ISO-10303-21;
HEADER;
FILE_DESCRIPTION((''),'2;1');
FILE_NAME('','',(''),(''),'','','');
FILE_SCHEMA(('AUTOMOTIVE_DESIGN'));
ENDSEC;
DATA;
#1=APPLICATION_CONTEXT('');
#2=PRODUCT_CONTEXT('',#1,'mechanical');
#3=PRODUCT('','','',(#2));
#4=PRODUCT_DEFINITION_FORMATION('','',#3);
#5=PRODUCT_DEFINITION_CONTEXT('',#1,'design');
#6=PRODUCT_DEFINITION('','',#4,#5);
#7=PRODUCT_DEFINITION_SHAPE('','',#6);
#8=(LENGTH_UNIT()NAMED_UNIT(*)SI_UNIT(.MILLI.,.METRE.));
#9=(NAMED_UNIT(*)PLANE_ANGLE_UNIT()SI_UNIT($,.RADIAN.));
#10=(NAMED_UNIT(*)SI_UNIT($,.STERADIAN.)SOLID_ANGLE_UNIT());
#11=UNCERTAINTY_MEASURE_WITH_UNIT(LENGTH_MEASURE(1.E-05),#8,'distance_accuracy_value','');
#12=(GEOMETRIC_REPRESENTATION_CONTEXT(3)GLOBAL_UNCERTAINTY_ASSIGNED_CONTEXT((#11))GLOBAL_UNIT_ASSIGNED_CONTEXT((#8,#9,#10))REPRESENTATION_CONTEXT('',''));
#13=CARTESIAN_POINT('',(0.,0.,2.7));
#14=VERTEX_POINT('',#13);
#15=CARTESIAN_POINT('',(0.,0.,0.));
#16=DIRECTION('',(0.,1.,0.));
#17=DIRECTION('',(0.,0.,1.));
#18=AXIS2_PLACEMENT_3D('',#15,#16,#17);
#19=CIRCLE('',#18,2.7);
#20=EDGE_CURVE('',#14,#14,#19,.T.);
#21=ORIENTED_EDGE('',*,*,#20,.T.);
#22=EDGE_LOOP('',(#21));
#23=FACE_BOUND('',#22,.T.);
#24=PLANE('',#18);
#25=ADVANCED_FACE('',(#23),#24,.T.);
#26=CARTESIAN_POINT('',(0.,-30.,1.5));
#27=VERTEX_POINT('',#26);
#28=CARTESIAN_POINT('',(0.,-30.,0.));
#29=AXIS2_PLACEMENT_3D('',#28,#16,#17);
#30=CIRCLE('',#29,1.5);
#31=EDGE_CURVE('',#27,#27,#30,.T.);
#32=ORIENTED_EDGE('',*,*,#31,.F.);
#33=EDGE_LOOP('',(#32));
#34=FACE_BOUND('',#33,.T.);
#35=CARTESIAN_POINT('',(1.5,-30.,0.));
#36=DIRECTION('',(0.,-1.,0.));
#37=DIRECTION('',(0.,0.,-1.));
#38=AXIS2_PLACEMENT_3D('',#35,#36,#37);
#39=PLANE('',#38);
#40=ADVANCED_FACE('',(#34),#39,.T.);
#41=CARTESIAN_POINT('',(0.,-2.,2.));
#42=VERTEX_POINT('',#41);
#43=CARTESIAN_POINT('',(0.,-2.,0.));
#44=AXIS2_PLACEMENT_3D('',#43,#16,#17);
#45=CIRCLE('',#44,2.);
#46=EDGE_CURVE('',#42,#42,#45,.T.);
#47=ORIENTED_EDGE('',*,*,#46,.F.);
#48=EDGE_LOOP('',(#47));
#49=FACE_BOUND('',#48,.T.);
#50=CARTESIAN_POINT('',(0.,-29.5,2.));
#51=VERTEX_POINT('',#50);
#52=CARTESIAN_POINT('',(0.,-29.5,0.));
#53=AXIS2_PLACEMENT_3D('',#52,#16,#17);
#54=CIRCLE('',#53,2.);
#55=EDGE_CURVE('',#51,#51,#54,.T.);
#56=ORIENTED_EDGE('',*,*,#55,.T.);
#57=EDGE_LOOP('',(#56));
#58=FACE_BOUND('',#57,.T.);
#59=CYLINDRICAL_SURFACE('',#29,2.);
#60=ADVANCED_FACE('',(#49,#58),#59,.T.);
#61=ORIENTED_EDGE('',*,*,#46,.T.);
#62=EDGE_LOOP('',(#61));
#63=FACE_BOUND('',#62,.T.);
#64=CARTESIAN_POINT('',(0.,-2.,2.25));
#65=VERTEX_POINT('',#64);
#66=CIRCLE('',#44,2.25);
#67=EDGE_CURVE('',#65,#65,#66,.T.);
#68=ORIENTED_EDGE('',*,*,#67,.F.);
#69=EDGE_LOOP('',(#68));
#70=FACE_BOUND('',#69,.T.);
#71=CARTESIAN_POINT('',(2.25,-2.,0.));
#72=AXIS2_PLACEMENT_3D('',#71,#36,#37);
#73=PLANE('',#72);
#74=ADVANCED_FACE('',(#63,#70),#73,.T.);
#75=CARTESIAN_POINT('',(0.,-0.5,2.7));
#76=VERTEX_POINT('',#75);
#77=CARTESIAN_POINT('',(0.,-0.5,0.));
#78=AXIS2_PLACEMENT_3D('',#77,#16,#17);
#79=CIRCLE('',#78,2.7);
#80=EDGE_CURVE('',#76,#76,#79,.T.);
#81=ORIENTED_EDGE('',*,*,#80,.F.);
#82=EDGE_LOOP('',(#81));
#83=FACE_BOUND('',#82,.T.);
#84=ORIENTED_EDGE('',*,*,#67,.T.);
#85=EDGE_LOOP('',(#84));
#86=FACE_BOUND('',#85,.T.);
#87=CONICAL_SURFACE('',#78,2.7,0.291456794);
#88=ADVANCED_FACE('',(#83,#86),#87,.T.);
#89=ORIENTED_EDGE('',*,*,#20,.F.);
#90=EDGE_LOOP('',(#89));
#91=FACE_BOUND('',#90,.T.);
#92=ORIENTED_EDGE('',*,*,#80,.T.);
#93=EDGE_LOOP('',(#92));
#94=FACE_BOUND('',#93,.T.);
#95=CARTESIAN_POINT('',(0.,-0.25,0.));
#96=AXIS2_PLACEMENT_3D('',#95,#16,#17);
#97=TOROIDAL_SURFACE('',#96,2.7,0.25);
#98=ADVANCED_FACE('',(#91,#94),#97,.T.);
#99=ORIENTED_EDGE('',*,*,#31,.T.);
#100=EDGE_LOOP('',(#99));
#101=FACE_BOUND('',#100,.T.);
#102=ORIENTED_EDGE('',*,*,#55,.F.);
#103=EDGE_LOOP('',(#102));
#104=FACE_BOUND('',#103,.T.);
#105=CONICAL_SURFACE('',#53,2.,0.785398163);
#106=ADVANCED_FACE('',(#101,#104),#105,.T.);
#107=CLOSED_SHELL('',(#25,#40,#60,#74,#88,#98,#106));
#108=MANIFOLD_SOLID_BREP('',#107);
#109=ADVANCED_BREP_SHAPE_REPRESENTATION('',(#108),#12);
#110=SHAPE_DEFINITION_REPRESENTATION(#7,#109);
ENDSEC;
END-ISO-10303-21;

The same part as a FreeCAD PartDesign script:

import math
import FreeCAD as App
import Part
import Sketcher
Q = App.Units.Quantity

doc = App.newDocument("Part")
body = doc.addObject("PartDesign::Body", "Body")

# Sketch on XY plane
sketch1 = body.newObject("Sketcher::SketchObject", "Sketch")
sketch1.AttachmentSupport = (doc.getObject("XY_Plane"), [""])
sketch1.MapMode = "FlatFace"
sketch1.addGeometry(Part.LineSegment(App.Vector(1.5, -30, 0), App.Vector(0, -30, 0)), False)
sketch1.addGeometry(Part.LineSegment(App.Vector(0, -30, 0), App.Vector(0, 0, 0)), False)
sketch1.addGeometry(Part.LineSegment(App.Vector(0, 0, 0), App.Vector(2.7, 0, 0)), False)
sketch1.addGeometry(Part.ArcOfCircle(Part.Circle(App.Vector(2.7, -0.25, 0), App.Vector(0, 0, 1), 0.25), math.radians(-90), math.radians(90)), False)
sketch1.addGeometry(Part.LineSegment(App.Vector(2.7, -0.5, 0), App.Vector(2.25, -2, 0)), False)
sketch1.addGeometry(Part.LineSegment(App.Vector(2.25, -2, 0), App.Vector(2, -2, 0)), False)
sketch1.addGeometry(Part.LineSegment(App.Vector(2, -2, 0), App.Vector(2, -29.5, 0)), False)
sketch1.addGeometry(Part.LineSegment(App.Vector(2, -29.5, 0), App.Vector(1.5, -30, 0)), False)
sketch1.addConstraint(Sketcher.Constraint("Coincident", 0, 2, 1, 1))
sketch1.addConstraint(Sketcher.Constraint("Coincident", 1, 2, 2, 1))
sketch1.addConstraint(Sketcher.Constraint("Tangent", 2, 2, 3, 2))
sketch1.addConstraint(Sketcher.Constraint("Coincident", 3, 1, 4, 1))
sketch1.addConstraint(Sketcher.Constraint("Coincident", 4, 2, 5, 1))
sketch1.addConstraint(Sketcher.Constraint("Coincident", 5, 2, 6, 1))
sketch1.addConstraint(Sketcher.Constraint("Coincident", 6, 2, 7, 1))
sketch1.addConstraint(Sketcher.Constraint("Coincident", 7, 2, 0, 1))
sketch1.addConstraint(Sketcher.Constraint("Horizontal", 0))
sketch1.addConstraint(Sketcher.Constraint("Vertical", 1))
sketch1.addConstraint(Sketcher.Constraint("Horizontal", 2))
sketch1.addConstraint(Sketcher.Constraint("Horizontal", 5))
sketch1.addConstraint(Sketcher.Constraint("Vertical", 6))
sketch1.addConstraint(Sketcher.Constraint("Coincident", 1, 2, -1, 1))
sketch1.addConstraint(Sketcher.Constraint("Vertical", 2, 2, 3, 1))
sketch1.addConstraint(Sketcher.Constraint("DistanceY", 1, 1, 1, 2, Q("30 mm")))
sketch1.addConstraint(Sketcher.Constraint("Angle", 7, Q("-135 deg")))
sketch1.addConstraint(Sketcher.Constraint("Radius", 3, Q("0.25 mm")))
sketch1.addConstraint(Sketcher.Constraint("DistanceX", 0, 2, 0, 1, Q("1.5 mm")))
sketch1.addConstraint(Sketcher.Constraint("DistanceX", 2, 1, 2, 2, Q("2.7 mm")))
sketch1.addConstraint(Sketcher.Constraint("DistanceY", 6, 2, 6, 1, Q("27.5 mm")))
sketch1.addConstraint(Sketcher.Constraint("DistanceY", 4, 2, -1, 1, Q("2 mm")))
sketch1.addConstraint(Sketcher.Constraint("DistanceX", 5, 2, 5, 1, Q("0.25 mm")))
revolution = body.newObject("PartDesign::Revolution", "Revolution")
revolution.Profile = sketch1
revolution.ReferenceAxis = (sketch1, ["V_Axis"])
revolution.Angle = 360

doc.recompute()
